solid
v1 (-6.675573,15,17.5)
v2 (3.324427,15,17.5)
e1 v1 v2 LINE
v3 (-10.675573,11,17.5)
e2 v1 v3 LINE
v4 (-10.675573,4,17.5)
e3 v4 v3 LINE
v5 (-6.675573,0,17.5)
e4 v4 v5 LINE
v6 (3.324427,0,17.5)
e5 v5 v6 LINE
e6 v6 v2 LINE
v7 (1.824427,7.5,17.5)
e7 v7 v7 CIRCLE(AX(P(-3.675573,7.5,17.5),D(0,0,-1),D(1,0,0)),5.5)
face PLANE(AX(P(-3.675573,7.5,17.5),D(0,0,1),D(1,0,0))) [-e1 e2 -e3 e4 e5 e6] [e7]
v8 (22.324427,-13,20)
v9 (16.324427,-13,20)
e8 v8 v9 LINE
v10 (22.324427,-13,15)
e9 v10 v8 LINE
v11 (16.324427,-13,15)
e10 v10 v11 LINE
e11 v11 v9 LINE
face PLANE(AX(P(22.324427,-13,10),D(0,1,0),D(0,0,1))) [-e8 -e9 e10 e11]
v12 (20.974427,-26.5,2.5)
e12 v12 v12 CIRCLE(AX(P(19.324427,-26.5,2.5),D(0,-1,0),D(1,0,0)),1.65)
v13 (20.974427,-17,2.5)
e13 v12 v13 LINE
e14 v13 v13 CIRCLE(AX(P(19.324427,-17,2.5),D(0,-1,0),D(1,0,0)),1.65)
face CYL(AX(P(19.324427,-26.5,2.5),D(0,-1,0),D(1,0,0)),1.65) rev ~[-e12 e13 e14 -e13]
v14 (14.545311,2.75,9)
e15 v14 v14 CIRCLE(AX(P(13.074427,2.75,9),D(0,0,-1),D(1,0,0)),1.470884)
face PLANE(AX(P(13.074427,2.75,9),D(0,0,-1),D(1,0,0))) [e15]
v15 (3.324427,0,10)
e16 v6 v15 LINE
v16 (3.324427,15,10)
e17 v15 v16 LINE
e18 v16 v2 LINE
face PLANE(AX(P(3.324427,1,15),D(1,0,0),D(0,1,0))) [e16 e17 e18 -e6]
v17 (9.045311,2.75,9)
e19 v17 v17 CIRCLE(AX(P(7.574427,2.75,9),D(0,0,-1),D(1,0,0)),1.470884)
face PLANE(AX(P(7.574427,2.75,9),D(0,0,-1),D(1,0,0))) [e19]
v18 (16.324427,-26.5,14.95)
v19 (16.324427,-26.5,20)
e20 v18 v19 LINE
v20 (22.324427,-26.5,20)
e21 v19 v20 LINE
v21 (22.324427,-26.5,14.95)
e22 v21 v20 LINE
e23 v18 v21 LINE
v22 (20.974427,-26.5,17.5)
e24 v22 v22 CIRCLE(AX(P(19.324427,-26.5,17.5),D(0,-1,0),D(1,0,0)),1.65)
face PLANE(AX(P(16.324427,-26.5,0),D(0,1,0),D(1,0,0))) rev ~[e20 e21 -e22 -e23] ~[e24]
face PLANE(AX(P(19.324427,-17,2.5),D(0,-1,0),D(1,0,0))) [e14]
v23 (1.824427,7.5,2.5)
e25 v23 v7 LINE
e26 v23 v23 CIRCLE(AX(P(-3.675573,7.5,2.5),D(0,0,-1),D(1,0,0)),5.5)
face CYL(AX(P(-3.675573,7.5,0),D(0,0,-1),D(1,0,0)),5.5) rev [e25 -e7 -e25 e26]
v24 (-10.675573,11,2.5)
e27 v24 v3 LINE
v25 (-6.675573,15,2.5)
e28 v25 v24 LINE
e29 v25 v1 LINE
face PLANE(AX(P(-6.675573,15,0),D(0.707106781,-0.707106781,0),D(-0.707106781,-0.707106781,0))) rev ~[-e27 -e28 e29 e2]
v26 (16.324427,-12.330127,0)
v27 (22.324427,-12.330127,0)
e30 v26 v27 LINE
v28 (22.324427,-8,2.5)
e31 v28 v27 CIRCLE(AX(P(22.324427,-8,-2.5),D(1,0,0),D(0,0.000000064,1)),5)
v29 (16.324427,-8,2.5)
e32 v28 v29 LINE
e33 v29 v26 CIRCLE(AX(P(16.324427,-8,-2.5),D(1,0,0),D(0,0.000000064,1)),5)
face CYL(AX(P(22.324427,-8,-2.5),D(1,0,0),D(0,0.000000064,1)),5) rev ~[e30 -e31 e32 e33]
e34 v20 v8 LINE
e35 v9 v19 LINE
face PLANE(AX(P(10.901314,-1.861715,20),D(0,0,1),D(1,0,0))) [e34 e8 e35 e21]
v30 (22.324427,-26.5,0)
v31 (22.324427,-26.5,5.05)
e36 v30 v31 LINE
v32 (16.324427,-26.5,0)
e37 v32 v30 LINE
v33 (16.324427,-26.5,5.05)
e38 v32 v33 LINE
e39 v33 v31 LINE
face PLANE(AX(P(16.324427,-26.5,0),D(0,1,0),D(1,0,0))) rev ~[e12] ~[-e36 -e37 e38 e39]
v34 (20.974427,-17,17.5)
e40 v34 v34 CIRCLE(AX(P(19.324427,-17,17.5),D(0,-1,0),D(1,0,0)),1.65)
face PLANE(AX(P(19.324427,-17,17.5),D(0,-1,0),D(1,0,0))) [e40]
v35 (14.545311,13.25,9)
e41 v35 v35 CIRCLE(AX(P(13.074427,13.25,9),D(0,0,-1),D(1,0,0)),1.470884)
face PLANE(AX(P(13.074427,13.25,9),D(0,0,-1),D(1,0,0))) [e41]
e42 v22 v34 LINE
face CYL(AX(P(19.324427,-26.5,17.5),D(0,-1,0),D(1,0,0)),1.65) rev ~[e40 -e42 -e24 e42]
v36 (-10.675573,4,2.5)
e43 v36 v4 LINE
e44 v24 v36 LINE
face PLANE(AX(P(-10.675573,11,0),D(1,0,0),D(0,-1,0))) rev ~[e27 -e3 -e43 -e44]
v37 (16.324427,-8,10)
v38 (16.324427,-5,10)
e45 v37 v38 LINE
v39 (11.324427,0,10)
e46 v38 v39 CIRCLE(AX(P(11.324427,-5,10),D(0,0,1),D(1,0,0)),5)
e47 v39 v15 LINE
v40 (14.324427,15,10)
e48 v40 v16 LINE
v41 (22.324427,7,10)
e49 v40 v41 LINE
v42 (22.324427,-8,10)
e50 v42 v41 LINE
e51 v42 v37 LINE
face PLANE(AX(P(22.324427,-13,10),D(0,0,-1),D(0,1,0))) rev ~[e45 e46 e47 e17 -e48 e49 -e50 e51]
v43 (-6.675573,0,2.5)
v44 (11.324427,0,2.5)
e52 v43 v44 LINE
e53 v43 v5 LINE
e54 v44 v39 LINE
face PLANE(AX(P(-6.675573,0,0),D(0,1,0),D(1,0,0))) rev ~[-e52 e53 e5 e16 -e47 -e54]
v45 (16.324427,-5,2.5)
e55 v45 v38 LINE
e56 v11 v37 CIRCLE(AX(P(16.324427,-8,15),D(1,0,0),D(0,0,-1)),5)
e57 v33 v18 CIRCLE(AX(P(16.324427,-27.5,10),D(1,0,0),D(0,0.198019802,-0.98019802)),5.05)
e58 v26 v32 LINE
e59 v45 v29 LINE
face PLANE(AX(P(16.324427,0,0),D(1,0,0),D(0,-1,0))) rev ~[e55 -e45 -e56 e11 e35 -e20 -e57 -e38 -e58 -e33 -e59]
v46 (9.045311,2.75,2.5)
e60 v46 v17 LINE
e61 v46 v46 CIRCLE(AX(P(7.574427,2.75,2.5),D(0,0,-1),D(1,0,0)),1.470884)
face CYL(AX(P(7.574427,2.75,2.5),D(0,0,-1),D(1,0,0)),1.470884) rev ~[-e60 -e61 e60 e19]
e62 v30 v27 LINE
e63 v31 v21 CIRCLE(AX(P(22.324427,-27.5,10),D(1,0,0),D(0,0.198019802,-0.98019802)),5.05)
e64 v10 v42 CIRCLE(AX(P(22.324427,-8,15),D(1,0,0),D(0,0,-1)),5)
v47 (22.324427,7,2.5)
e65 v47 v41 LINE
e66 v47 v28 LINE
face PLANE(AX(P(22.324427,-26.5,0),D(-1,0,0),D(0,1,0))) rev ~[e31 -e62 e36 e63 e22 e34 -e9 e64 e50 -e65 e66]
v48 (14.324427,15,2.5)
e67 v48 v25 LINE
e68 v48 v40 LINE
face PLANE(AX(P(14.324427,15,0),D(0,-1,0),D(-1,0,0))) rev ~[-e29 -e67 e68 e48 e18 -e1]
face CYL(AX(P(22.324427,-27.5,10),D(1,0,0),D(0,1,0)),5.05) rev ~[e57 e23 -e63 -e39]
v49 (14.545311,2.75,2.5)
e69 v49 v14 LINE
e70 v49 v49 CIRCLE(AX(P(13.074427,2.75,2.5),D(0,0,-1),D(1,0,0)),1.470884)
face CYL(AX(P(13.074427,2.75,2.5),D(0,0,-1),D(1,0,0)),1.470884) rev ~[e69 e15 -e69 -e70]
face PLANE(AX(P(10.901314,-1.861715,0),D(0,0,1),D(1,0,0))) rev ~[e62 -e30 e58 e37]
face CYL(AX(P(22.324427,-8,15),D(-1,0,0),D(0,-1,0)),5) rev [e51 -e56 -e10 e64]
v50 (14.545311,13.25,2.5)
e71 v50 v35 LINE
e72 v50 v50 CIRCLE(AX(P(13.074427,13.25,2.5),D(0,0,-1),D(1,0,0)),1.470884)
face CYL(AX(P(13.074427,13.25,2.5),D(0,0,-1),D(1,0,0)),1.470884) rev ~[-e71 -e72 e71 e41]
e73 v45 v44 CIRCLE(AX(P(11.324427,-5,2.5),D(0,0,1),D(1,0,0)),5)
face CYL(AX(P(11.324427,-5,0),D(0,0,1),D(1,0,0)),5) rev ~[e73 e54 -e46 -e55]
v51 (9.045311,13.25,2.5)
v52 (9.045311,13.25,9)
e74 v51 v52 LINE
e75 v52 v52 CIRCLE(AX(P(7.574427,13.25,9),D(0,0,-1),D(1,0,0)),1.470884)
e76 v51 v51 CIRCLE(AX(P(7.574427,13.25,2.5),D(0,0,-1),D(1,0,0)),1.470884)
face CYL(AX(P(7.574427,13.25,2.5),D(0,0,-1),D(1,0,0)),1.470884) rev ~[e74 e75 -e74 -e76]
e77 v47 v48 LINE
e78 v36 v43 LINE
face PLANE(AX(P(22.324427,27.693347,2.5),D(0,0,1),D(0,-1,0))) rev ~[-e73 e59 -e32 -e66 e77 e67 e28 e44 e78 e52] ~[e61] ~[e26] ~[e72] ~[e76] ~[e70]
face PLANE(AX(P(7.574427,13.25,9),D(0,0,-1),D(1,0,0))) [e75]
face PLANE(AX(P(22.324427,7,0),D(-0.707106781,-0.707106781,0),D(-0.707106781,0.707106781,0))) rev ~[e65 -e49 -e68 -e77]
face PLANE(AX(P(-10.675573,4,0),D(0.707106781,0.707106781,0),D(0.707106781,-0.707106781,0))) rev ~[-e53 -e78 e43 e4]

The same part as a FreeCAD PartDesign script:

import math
import FreeCAD as App
import Part
import Sketcher
from FreeCAD import Vector


def edges_at(feature, points):
    """Names of the edges that pass closest to the given points."""
    edges = feature.Shape.Edges
    near = lambda p: min(range(len(edges)), key=lambda i: edges[i].distToShape(Part.Vertex(*p))[0])
    return sorted({f"Edge{near(p) + 1}" for p in points})


def add_polygon(sketch, points):
    """Adds a closed chain of lines whose ends are joined by coincident constraints."""
    first, n = sketch.GeometryCount, len(points)
    for a, b in zip(points, points[1:] + points[:1]):
        sketch.addGeometry(Part.LineSegment(App.Vector(*a, 0), App.Vector(*b, 0)), False)
    for i in range(n):
        sketch.addConstraint(Sketcher.Constraint("Coincident", first + i, 2, first + (i + 1) % n, 1))

doc = App.newDocument("Part")
body = doc.addObject("PartDesign::Body", "Body")

# Sketch on XY plane
sketch1 = body.newObject("Sketcher::SketchObject", "Sketch")
sketch1.AttachmentSupport = (doc.getObject("XY_Plane"), [""])
sketch1.MapMode = "FlatFace"
add_polygon(sketch1, [(22, -26), (22, 7), (14, 15), (-7, 15), (-11, 11), (-11, 4), (-7, 0), (16, 0), (16, -26)])  # lines 0-8
sketch1.addGeometry(Part.Circle(Vector(-4, 8, 0), Vector(0, 0, 1), 6), False)  # 9
sketch1.addConstraint(Sketcher.Constraint("Vertical", 0))
sketch1.addConstraint(Sketcher.Constraint("Horizontal", 2))
sketch1.addConstraint(Sketcher.Constraint("Vertical", 4))
sketch1.addConstraint(Sketcher.Constraint("Horizontal", 6))
sketch1.addConstraint(Sketcher.Constraint("Vertical", 7))
sketch1.addConstraint(Sketcher.Constraint("Horizontal", 8))
sketch1.addConstraint(Sketcher.Constraint("PointOnObject", 5, 2, -1))
sketch1.addConstraint(Sketcher.Constraint("Perpendicular", 1, 3))
sketch1.addConstraint(Sketcher.Constraint("Perpendicular", 3, 5))
sketch1.addConstraint(Sketcher.Constraint("Vertical", 2, 2, 5, 2))
sketch1.addConstraint(Sketcher.Constraint("Equal", 3, 5))
sketch1.addConstraint(Sketcher.Constraint("Diameter", 9, 11.0))
sketch1.addConstraint(Sketcher.Constraint("DistanceX", 2, 2, 2, 1, 21.0))
sketch1.addConstraint(Sketcher.Constraint("DistanceX", 6, 1, 6, 2, 23.0))
sketch1.addConstraint(Sketcher.Constraint("DistanceX", 8, 1, 8, 2, 6.0))
sketch1.addConstraint(Sketcher.Constraint("DistanceY", 4, 2, 4, 1, 7.0))
sketch1.addConstraint(Sketcher.Constraint("DistanceY", 0, 1, 0, 2, 33.5))
sketch1.addConstraint(Sketcher.Constraint("DistanceY", 7, 2, 7, 1, 26.5))
sketch1.addConstraint(Sketcher.Constraint("DistanceX", 9, 3, 0, 2, 26.0))
sketch1.addConstraint(Sketcher.Constraint("DistanceY", 7, 2, 9, 3, 34.0))
sketch1.addConstraint(Sketcher.Constraint("DistanceX", 9, 3, -1, 1, 3.675573))
pad1 = body.newObject("PartDesign::Pad", "Pad")
pad1.Profile = sketch1
pad1.Length = 20
doc.recompute()

fillet = body.newObject("PartDesign::Fillet", "Fillet")
fillet.Base = (pad1, edges_at(pad1, [(16.324, 0, 10)]))
fillet.Radius = 5

# Sketch on YZ plane
sketch2 = body.newObject("Sketcher::SketchObject", "Sketch001")
sketch2.AttachmentSupport = (doc.getObject("YZ_Plane"), [""])
sketch2.MapMode = "FlatFace"
sketch2.AttachmentOffset = App.Placement(Vector(0, 0, 22.324427), App.Rotation())
add_polygon(sketch2, [(-13, 20), (-13, 10), (15, 10), (15, 20)])  # lines 0-3
sketch2.addConstraint(Sketcher.Constraint("Vertical", 0))
sketch2.addConstraint(Sketcher.Constraint("Horizontal", 1))
sketch2.addConstraint(Sketcher.Constraint("Vertical", 2))
sketch2.addConstraint(Sketcher.Constraint("Horizontal", 3))
sketch2.addConstraint(Sketcher.Constraint("DistanceX", 1, 1, 1, 2, 28.0))
sketch2.addConstraint(Sketcher.Constraint("DistanceY", 0, 2, 0, 1, 10.0))
sketch2.addConstraint(Sketcher.Constraint("DistanceX", 0, 2, -1, 1, 13.0))
sketch2.addConstraint(Sketcher.Constraint("DistanceY", -1, 1, 0, 2, 10.0))
pocket1 = body.newObject("PartDesign::Pocket", "Pocket")
pocket1.Profile = sketch2
pocket1.Length = 19

# Sketch on XY plane
sketch3 = body.newObject("Sketcher::SketchObject", "Sketch002")
sketch3.AttachmentSupport = (doc.getObject("XY_Plane"), [""])
sketch3.MapMode = "FlatFace"
sketch3.AttachmentOffset = App.Placement(Vector(0, 0, 20), App.Rotation())
add_polygon(sketch3, [(-11, 15), (-11, 0), (3, 0), (3, 15)])  # lines 0-3
sketch3.addConstraint(Sketcher.Constraint("Vertical", 0))
sketch3.addConstraint(Sketcher.Constraint("Horizontal", 1))
sketch3.addConstraint(Sketcher.Constraint("Vertical", 2))
sketch3.addConstraint(Sketcher.Constraint("Horizontal", 3))
sketch3.addConstraint(Sketcher.Constraint("PointOnObject", 0, 2, -1))
sketch3.addConstraint(Sketcher.Constraint("DistanceX", 1, 1, 1, 2, 14.0))
sketch3.addConstraint(Sketcher.Constraint("DistanceY", 0, 2, 0, 1, 15.0))
sketch3.addConstraint(Sketcher.Constraint("DistanceX", 0, 2, -1, 1, 10.675573))
pocket2 = body.newObject("PartDesign::Pocket", "Pocket001")
pocket2.Profile = sketch3
pocket2.Length = 2.5
doc.recompute()

fillet2 = body.newObject("PartDesign::Fillet", "Fillet001")
fillet2.Base = (pocket2, edges_at(pocket2, [(19.324, -13, 10)]))
fillet2.Radius = 5

# Sketch on YZ plane
sketch4 = body.newObject("Sketcher::SketchObject", "Sketch003")
sketch4.AttachmentSupport = (doc.getObject("YZ_Plane"), [""])
sketch4.MapMode = "FlatFace"
sketch4.AttachmentOffset = App.Placement(Vector(0, 0, 22.324427), App.Rotation())
sketch4.addGeometry(Part.LineSegment(Vector(-13, -2.5, 0), Vector(-13, -12.3, 0)), False)
sketch4.addGeometry(Part.LineSegment(Vector(-13, -12.3, 0), Vector(27.7, -12.3, 0)), False)
sketch4.addGeometry(Part.LineSegment(Vector(27.7, -12.3, 0), Vector(27.7, 2.5, 0)), False)
sketch4.addGeometry(Part.LineSegment(Vector(27.7, 2.5, 0), Vector(-8, 2.5, 0)), False)
sketch4.addGeometry(Part.ArcOfCircle(Part.Circle(Vector(-8, -2.5, 0), Vector(0, 0, 1), 5), math.radians(90), math.radians(180)), False)
sketch4.addGeometry(Part.Circle(Vector(-27.5, 10, 0), Vector(0, 0, 1), 5), False)
sketch4.addConstraint(Sketcher.Constraint("Coincident", 0, 2, 1, 1))
sketch4.addConstraint(Sketcher.Constraint("Coincident", 1, 2, 2, 1))
sketch4.addConstraint(Sketcher.Constraint("Coincident", 2, 2, 3, 1))
sketch4.addConstraint(Sketcher.Constraint("Tangent", 3, 2, 4, 1))
sketch4.addConstraint(Sketcher.Constraint("Tangent", 4, 2, 0, 1))
sketch4.addConstraint(Sketcher.Constraint("Vertical", 0))
sketch4.addConstraint(Sketcher.Constraint("Horizontal", 1))
sketch4.addConstraint(Sketcher.Constraint("Vertical", 2))
sketch4.addConstraint(Sketcher.Constraint("Horizontal", 3))
sketch4.addConstraint(Sketcher.Constraint("Radius", 4, 5.0))
sketch4.addConstraint(Sketcher.Constraint("Diameter", 5, 10.1))
sketch4.addConstraint(Sketcher.Constraint("DistanceX", 4, 3, -1, 1, 8.0))
sketch4.addConstraint(Sketcher.Constraint("DistanceY", -1, 1, 5, 3, 10.0))
sketch4.addConstraint(Sketcher.Constraint("DistanceY", 4, 3, -1, 1, 2.5))
sketch4.addConstraint(Sketcher.Constraint("DistanceX", 5, 3, -1, 1, 27.5))
sketch4.addConstraint(Sketcher.Constraint("DistanceX", 1, 1, 1, 2, 40.693347))
sketch4.addConstraint(Sketcher.Constraint("DistanceY", 0, 2, 0, 1, 9.779106))
pocket3 = body.newObject("PartDesign::Pocket", "Pocket002")
pocket3.Profile = sketch4
pocket3.Length = 33

# Sketch on XZ plane
sketch5 = body.newObject("Sketcher::SketchObject", "Sketch004")
sketch5.AttachmentSupport = (doc.getObject("XZ_Plane"), [""])
sketch5.MapMode = "FlatFace"
sketch5.AttachmentOffset = App.Placement(Vector(0, 0, 26.5), App.Rotation())
sketch5.addGeometry(Part.Circle(Vector(19.3, 17.5, 0), Vector(0, 0, 1), 1.6), False)
sketch5.addGeometry(Part.Circle(Vector(19.3, 2.5, 0), Vector(0, 0, 1), 1.6), False)
sketch5.addConstraint(Sketcher.Constraint("Equal", 0, 1))
sketch5.addConstraint(Sketcher.Constraint("Vertical", 0, 3, 1, 3))
sketch5.addConstraint(Sketcher.Constraint("Diameter", 0, 3.3))
sketch5.addConstraint(Sketcher.Constraint("DistanceY", 1, 3, 0, 3, 15.0))
sketch5.addConstraint(Sketcher.Constraint("DistanceY", -1, 1, 0, 3, 17.5))
sketch5.addConstraint(Sketcher.Constraint("DistanceX", -1, 1, 0, 3, 19.324427))
pocket4 = body.newObject("PartDesign::Pocket", "Pocket003")
pocket4.Profile = sketch5
pocket4.Length = 9.5

# Sketch on XY plane
sketch6 = body.newObject("Sketcher::SketchObject", "Sketch005")
sketch6.AttachmentSupport = (doc.getObject("XY_Plane"), [""])
sketch6.MapMode = "FlatFace"
sketch6.AttachmentOffset = App.Placement(Vector(0, 0, 2.5), App.Rotation())
sketch6.addGeometry(Part.Circle(Vector(7.6, 2.8, 0), Vector(0, 0, 1), 1.5), False)
sketch6.addGeometry(Part.Circle(Vector(7.6, 13.2, 0), Vector(0, 0, 1), 1.5), False)
sketch6.addGeometry(Part.Circle(Vector(13.1, 2.8, 0), Vector(0, 0, 1), 1.5), False)
sketch6.addGeometry(Part.Circle(Vector(13.1, 13.2, 0), Vector(0, 0, 1), 1.5), False)
sketch6.addConstraint(Sketcher.Constraint("Equal", 0, 1))
sketch6.addConstraint(Sketcher.Constraint("Equal", 1, 2))
sketch6.addConstraint(Sketcher.Constraint("Equal", 2, 3))
sketch6.addConstraint(Sketcher.Constraint("Horizontal", 0, 3, 2, 3))
sketch6.addConstraint(Sketcher.Constraint("Horizontal", 1, 3, 3, 3))
sketch6.addConstraint(Sketcher.Constraint("Vertical", 0, 3, 1, 3))
sketch6.addConstraint(Sketcher.Constraint("Vertical", 2, 3, 3, 3))
sketch6.addConstraint(Sketcher.Constraint("DistanceY", 0, 3, 1, 3, 10.5))
sketch6.addConstraint(Sketcher.Constraint("DistanceX", 0, 3, 2, 3, 5.5))
sketch6.addConstraint(Sketcher.Constraint("Diameter", 0, 2.941768))
sketch6.addConstraint(Sketcher.Constraint("DistanceY", -1, 1, 0, 3, 2.75))
sketch6.addConstraint(Sketcher.Constraint("DistanceX", -1, 1, 0, 3, 7.574427))
pocket5 = body.newObject("PartDesign::Pocket", "Pocket004")
pocket5.Profile = sketch6
pocket5.Length = 6.5
pocket5.Reversed = True

doc.recompute()
